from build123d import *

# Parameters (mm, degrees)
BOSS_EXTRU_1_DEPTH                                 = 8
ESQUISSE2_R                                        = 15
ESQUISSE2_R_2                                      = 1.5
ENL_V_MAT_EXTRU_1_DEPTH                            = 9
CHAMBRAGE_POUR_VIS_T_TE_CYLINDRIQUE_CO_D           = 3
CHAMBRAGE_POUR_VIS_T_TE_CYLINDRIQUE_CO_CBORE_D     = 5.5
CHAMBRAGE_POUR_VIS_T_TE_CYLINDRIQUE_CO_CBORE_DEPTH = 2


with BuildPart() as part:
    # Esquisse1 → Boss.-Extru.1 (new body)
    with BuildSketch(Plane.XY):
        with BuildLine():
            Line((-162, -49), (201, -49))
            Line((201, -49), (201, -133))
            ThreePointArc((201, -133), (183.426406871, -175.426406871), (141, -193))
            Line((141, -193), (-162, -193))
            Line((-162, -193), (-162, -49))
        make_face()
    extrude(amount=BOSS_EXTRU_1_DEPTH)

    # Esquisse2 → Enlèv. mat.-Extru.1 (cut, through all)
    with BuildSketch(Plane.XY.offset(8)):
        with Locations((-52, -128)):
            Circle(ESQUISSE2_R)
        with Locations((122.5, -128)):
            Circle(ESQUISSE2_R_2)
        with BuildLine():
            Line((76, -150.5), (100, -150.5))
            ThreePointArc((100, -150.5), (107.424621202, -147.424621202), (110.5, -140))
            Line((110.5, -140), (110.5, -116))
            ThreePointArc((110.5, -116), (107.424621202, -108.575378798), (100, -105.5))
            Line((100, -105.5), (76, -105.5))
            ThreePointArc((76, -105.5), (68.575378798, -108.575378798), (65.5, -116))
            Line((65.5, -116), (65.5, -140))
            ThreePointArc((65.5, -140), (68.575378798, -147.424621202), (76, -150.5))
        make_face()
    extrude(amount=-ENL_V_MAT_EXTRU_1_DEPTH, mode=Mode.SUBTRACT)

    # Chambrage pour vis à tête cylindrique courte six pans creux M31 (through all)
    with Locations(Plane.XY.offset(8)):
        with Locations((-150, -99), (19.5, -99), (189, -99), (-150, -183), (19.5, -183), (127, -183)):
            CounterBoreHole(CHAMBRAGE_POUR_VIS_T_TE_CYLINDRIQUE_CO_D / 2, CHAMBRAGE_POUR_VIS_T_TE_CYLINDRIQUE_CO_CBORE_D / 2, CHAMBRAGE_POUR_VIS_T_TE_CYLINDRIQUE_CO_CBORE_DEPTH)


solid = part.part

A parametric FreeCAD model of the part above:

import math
import FreeCAD as App
import Part
import Sketcher

V = App.Vector

doc = App.newDocument("Part")
body = doc.addObject("PartDesign::Body", "Body")

sketch1 = body.newObject("Sketcher::SketchObject", "Sketch")
sketch1.AttachmentSupport = (doc.getObject("XY_Plane"), [""])
sketch1.MapMode = "FlatFace"
sketch1.addGeometry([
    Part.LineSegment(V(201, -49, 0), V(-162, -49, 0)),
    Part.LineSegment(V(-162, -49, 0), V(-162, -193, 0)),
    Part.LineSegment(V(-162, -193, 0), V(141, -193, 0)),
    Part.ArcOfCircle(Part.Circle(V(141, -133, 0), V(0, 0, 1), 60), math.radians(-90), math.radians(0)),
    Part.LineSegment(V(201, -133, 0), V(201, -49, 0)),
], False)
sketch1.addConstraint([
    Sketcher.Constraint("Coincident", 0, 2, 1, 1),
    Sketcher.Constraint("Coincident", 1, 2, 2, 1),
    Sketcher.Constraint("Tangent", 2, 2, 3, 1),
    Sketcher.Constraint("Tangent", 3, 2, 4, 1),
    Sketcher.Constraint("Coincident", 4, 2, 0, 1),
    Sketcher.Constraint("Horizontal", 0),
    Sketcher.Constraint("Vertical", 1),
    Sketcher.Constraint("Horizontal", 2),
    Sketcher.Constraint("Vertical", 4),
    Sketcher.Constraint("Radius", 3, 60.0),
    Sketcher.Constraint("DistanceX", 0, 2, 0, 1, 363.0),
    Sketcher.Constraint("DistanceY", 1, 2, 1, 1, 144.0),
    Sketcher.Constraint("DistanceX", -1, 1, 3, 3, 141.0),
    Sketcher.Constraint("DistanceY", 3, 3, -1, 1, 133.0),
])
pad1 = body.newObject("PartDesign::Pad", "Pad")
pad1.Profile = sketch1
pad1.Length = 8

sketch2 = body.newObject("Sketcher::SketchObject", "Sketch001")
sketch2.AttachmentSupport = (doc.getObject("XY_Plane"), [""])
sketch2.MapMode = "FlatFace"
sketch2.AttachmentOffset = App.Placement(V(0, 0, 8), App.Rotation())
sketch2.addGeometry([
    Part.Circle(V(-52, -128, 0), V(0, 0, 1), 15),
    Part.Circle(V(122.5, -128, 0), V(0, 0, 1), 1.5),
    Part.LineSegment(V(76, -150.5, 0), V(100, -150.5, 0)),
    Part.ArcOfCircle(Part.Circle(V(100, -140, 0), V(0, 0, 1), 10.5), math.radians(-90), math.radians(0)),
    Part.LineSegment(V(110.5, -140, 0), V(110.5, -116, 0)),
    Part.ArcOfCircle(Part.Circle(V(100, -116, 0), V(0, 0, 1), 10.5), math.radians(0), math.radians(90)),
    Part.LineSegment(V(100, -105.5, 0), V(76, -105.5, 0)),
    Part.ArcOfCircle(Part.Circle(V(76, -116, 0), V(0, 0, 1), 10.5), math.radians(90), math.radians(180)),
    Part.LineSegment(V(65.5, -116, 0), V(65.5, -140, 0)),
    Part.ArcOfCircle(Part.Circle(V(76, -140, 0), V(0, 0, 1), 10.5), math.radians(-180), math.radians(-90)),
], False)
sketch2.addConstraint([
    Sketcher.Constraint("Tangent", 2, 2, 3, 1),
    Sketcher.Constraint("Tangent", 3, 2, 4, 1),
    Sketcher.Constraint("Tangent", 4, 2, 5, 1),
    Sketcher.Constraint("Tangent", 5, 2, 6, 1),
    Sketcher.Constraint("Tangent", 6, 2, 7, 1),
    Sketcher.Constraint("Tangent", 7, 2, 8, 1),
    Sketcher.Constraint("Tangent", 8, 2, 9, 1),
    Sketcher.Constraint("Tangent", 9, 2, 2, 1),
    Sketcher.Constraint("Horizontal", 2),
    Sketcher.Constraint("Vertical", 4),
    Sketcher.Constraint("Horizontal", 6),
    Sketcher.Constraint("Vertical", 8),
    Sketcher.Constraint("Equal", 3, 5),
    Sketcher.Constraint("Equal", 5, 7),
    Sketcher.Constraint("Equal", 7, 9),
    Sketcher.Constraint("Horizontal", 0, 3, 1, 3),
    Sketcher.Constraint("Equal", 6, 4),
    Sketcher.Constraint("Diameter", 0, 30.0),
    Sketcher.Constraint("Diameter", 1, 3.0),
    Sketcher.Constraint("Radius", 3, 10.5),
    Sketcher.Constraint("DistanceX", 2, 1, 2, 2, 24.0),
    Sketcher.Constraint("DistanceX", 0, 3, -1, 1, 52.0),
    Sketcher.Constraint("DistanceY", 0, 3, -1, 1, 128.0),
    Sketcher.Constraint("DistanceX", -1, 1, 3, 3, 100.0),
    Sketcher.Constraint("DistanceY", 3, 3, -1, 1, 140.0),
    Sketcher.Constraint("DistanceX", 3, 2, 1, 3, 12.0),
])
pocket1 = body.newObject("PartDesign::Pocket", "Pocket")
pocket1.Profile = sketch2
pocket1.Type = "ThroughAll"

sketch3 = body.newObject("Sketcher::SketchObject", "Sketch002")
sketch3.AttachmentSupport = (doc.getObject("XY_Plane"), [""])
sketch3.MapMode = "FlatFace"
sketch3.AttachmentOffset = App.Placement(V(0, 0, 8), App.Rotation())
sketch3.addGeometry([
    Part.Circle(V(-150, -99, 0), V(0, 0, 1), 1.5),
    Part.Circle(V(19.5, -99, 0), V(0, 0, 1), 1.5),
    Part.Circle(V(189, -99, 0), V(0, 0, 1), 1.5),
    Part.Circle(V(-150, -183, 0), V(0, 0, 1), 1.5),
    Part.Circle(V(19.5, -183, 0), V(0, 0, 1), 1.5),
    Part.Circle(V(127, -183, 0), V(0, 0, 1), 1.5),
], False)
sketch3.addConstraint([
    Sketcher.Constraint("Equal", 0, 1),
    Sketcher.Constraint("Equal", 1, 2),
    Sketcher.Constraint("Equal", 2, 3),
    Sketcher.Constraint("Equal", 3, 4),
    Sketcher.Constraint("Equal", 4, 5),
    Sketcher.Constraint("Horizontal", 0, 3, 1, 3),
    Sketcher.Constraint("Horizontal", 1, 3, 2, 3),
    Sketcher.Constraint("Horizontal", 3, 3, 4, 3),
    Sketcher.Constraint("Horizontal", 4, 3, 5, 3),
    Sketcher.Constraint("Vertical", 0, 3, 3, 3),
    Sketcher.Constraint("Vertical", 1, 3, 4, 3),
    Sketcher.Constraint("Diameter", 0, 3.0),
    Sketcher.Constraint("DistanceX", 0, 3, -1, 1, 150.0),
    Sketcher.Constraint("DistanceY", 0, 3, -1, 1, 99.0),
    Sketcher.Constraint("DistanceX", -1, 1, 2, 3, 189.0),
    Sketcher.Constraint("DistanceY", 3, 3, -1, 1, 183.0),
    Sketcher.Constraint("DistanceX", -1, 1, 5, 3, 127.0),
    Sketcher.Constraint("DistanceX", -1, 1, 1, 3, 19.5),
])
doc.recompute()
hole = body.newObject("PartDesign::Hole", "Hole")
hole.Profile = sketch3
hole.ThreadType = "None"
hole.Diameter = 3
hole.DepthType = "ThroughAll"
hole.HoleCutType = "Counterbore"
hole.HoleCutDiameter = 5.5
hole.HoleCutDepth = 2

doc.recompute()
